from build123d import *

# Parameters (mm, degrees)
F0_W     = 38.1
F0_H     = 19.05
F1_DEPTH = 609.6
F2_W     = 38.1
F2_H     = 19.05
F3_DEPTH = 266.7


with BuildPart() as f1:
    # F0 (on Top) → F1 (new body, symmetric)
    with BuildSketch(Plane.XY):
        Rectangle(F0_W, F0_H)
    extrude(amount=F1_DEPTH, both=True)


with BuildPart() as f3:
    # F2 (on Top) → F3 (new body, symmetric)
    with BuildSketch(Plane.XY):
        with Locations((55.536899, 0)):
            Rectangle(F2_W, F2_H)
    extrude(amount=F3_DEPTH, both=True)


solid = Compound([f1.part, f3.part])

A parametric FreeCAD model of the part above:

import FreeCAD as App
import Part
import Sketcher

V = App.Vector
Q = App.Units.Quantity


def add_polygon(sketch, points):
    """Adds a closed chain of lines whose ends are joined by coincident constraints."""
    first, n = sketch.GeometryCount, len(points)
    for a, b in zip(points, points[1:] + points[:1]):
        sketch.addGeometry(Part.LineSegment(App.Vector(*a, 0), App.Vector(*b, 0)), False)
    for i in range(n):
        sketch.addConstraint(Sketcher.Constraint("Coincident", first + i, 2, first + (i + 1) % n, 1))

doc = App.newDocument("Part")
body = doc.addObject("PartDesign::Body", "Body")

# Sketch on XY plane
sketch1 = doc.addObject("Sketcher::SketchObject", "Sketch")
body.addObject(sketch1)
sketch1.AttachmentSupport = (doc.XY_Plane, [""])
sketch1.MapMode = "FlatFace"
add_polygon(sketch1, [(-19, 10), (-19, -10), (19, -10), (19, 10)])  # lines 0-3
sketch1.addConstraint([
    Sketcher.Constraint("Vertical", 0),
    Sketcher.Constraint("Horizontal", 1),
    Sketcher.Constraint("Vertical", 2),
    Sketcher.Constraint("Horizontal", 3),
    Sketcher.Constraint("Symmetric", 0, 2, 2, 2, -1, 1),
    Sketcher.Constraint("DistanceX", 1, 1, 1, 2, Q("1.5 in")),
    Sketcher.Constraint("DistanceY", 0, 2, 0, 1, Q("0.75 in")),
])
pad1 = doc.addObject("PartDesign::Pad", "Pad")
body.addObject(pad1)
pad1.Profile = sketch1
pad1.Length = Q("48 in")
pad1.Midplane = True
body2 = doc.addObject("PartDesign::Body", "Body001")

# Sketch on XY plane
sketch2 = doc.addObject("Sketcher::SketchObject", "Sketch001")
body2.addObject(sketch2)
sketch2.AttachmentSupport = (doc.getObject("XY_Plane001"), [""])
sketch2.MapMode = "FlatFace"
add_polygon(sketch2, [(36, 10), (36, -10), (75, -10), (75, 10)])  # lines 0-3
sketch2.addConstraint([
    Sketcher.Constraint("Vertical", 0),
    Sketcher.Constraint("Horizontal", 1),
    Sketcher.Constraint("Vertical", 2),
    Sketcher.Constraint("Horizontal", 3),
    Sketcher.Constraint("DistanceX", 1, 1, 1, 2, Q("1.5 in")),
    Sketcher.Constraint("DistanceY", 0, 2, 0, 1, Q("0.75 in")),
    Sketcher.Constraint("DistanceY", 0, 2, -1, 1, Q("0.375 in")),
    Sketcher.Constraint("DistanceX", -1, 1, 0, 2, 36.486899),
])
pad2 = doc.addObject("PartDesign::Pad", "Pad001")
body2.addObject(pad2)
pad2.Profile = sketch2
pad2.Length = Q("21 in")
pad2.Midplane = True

doc.recompute()
